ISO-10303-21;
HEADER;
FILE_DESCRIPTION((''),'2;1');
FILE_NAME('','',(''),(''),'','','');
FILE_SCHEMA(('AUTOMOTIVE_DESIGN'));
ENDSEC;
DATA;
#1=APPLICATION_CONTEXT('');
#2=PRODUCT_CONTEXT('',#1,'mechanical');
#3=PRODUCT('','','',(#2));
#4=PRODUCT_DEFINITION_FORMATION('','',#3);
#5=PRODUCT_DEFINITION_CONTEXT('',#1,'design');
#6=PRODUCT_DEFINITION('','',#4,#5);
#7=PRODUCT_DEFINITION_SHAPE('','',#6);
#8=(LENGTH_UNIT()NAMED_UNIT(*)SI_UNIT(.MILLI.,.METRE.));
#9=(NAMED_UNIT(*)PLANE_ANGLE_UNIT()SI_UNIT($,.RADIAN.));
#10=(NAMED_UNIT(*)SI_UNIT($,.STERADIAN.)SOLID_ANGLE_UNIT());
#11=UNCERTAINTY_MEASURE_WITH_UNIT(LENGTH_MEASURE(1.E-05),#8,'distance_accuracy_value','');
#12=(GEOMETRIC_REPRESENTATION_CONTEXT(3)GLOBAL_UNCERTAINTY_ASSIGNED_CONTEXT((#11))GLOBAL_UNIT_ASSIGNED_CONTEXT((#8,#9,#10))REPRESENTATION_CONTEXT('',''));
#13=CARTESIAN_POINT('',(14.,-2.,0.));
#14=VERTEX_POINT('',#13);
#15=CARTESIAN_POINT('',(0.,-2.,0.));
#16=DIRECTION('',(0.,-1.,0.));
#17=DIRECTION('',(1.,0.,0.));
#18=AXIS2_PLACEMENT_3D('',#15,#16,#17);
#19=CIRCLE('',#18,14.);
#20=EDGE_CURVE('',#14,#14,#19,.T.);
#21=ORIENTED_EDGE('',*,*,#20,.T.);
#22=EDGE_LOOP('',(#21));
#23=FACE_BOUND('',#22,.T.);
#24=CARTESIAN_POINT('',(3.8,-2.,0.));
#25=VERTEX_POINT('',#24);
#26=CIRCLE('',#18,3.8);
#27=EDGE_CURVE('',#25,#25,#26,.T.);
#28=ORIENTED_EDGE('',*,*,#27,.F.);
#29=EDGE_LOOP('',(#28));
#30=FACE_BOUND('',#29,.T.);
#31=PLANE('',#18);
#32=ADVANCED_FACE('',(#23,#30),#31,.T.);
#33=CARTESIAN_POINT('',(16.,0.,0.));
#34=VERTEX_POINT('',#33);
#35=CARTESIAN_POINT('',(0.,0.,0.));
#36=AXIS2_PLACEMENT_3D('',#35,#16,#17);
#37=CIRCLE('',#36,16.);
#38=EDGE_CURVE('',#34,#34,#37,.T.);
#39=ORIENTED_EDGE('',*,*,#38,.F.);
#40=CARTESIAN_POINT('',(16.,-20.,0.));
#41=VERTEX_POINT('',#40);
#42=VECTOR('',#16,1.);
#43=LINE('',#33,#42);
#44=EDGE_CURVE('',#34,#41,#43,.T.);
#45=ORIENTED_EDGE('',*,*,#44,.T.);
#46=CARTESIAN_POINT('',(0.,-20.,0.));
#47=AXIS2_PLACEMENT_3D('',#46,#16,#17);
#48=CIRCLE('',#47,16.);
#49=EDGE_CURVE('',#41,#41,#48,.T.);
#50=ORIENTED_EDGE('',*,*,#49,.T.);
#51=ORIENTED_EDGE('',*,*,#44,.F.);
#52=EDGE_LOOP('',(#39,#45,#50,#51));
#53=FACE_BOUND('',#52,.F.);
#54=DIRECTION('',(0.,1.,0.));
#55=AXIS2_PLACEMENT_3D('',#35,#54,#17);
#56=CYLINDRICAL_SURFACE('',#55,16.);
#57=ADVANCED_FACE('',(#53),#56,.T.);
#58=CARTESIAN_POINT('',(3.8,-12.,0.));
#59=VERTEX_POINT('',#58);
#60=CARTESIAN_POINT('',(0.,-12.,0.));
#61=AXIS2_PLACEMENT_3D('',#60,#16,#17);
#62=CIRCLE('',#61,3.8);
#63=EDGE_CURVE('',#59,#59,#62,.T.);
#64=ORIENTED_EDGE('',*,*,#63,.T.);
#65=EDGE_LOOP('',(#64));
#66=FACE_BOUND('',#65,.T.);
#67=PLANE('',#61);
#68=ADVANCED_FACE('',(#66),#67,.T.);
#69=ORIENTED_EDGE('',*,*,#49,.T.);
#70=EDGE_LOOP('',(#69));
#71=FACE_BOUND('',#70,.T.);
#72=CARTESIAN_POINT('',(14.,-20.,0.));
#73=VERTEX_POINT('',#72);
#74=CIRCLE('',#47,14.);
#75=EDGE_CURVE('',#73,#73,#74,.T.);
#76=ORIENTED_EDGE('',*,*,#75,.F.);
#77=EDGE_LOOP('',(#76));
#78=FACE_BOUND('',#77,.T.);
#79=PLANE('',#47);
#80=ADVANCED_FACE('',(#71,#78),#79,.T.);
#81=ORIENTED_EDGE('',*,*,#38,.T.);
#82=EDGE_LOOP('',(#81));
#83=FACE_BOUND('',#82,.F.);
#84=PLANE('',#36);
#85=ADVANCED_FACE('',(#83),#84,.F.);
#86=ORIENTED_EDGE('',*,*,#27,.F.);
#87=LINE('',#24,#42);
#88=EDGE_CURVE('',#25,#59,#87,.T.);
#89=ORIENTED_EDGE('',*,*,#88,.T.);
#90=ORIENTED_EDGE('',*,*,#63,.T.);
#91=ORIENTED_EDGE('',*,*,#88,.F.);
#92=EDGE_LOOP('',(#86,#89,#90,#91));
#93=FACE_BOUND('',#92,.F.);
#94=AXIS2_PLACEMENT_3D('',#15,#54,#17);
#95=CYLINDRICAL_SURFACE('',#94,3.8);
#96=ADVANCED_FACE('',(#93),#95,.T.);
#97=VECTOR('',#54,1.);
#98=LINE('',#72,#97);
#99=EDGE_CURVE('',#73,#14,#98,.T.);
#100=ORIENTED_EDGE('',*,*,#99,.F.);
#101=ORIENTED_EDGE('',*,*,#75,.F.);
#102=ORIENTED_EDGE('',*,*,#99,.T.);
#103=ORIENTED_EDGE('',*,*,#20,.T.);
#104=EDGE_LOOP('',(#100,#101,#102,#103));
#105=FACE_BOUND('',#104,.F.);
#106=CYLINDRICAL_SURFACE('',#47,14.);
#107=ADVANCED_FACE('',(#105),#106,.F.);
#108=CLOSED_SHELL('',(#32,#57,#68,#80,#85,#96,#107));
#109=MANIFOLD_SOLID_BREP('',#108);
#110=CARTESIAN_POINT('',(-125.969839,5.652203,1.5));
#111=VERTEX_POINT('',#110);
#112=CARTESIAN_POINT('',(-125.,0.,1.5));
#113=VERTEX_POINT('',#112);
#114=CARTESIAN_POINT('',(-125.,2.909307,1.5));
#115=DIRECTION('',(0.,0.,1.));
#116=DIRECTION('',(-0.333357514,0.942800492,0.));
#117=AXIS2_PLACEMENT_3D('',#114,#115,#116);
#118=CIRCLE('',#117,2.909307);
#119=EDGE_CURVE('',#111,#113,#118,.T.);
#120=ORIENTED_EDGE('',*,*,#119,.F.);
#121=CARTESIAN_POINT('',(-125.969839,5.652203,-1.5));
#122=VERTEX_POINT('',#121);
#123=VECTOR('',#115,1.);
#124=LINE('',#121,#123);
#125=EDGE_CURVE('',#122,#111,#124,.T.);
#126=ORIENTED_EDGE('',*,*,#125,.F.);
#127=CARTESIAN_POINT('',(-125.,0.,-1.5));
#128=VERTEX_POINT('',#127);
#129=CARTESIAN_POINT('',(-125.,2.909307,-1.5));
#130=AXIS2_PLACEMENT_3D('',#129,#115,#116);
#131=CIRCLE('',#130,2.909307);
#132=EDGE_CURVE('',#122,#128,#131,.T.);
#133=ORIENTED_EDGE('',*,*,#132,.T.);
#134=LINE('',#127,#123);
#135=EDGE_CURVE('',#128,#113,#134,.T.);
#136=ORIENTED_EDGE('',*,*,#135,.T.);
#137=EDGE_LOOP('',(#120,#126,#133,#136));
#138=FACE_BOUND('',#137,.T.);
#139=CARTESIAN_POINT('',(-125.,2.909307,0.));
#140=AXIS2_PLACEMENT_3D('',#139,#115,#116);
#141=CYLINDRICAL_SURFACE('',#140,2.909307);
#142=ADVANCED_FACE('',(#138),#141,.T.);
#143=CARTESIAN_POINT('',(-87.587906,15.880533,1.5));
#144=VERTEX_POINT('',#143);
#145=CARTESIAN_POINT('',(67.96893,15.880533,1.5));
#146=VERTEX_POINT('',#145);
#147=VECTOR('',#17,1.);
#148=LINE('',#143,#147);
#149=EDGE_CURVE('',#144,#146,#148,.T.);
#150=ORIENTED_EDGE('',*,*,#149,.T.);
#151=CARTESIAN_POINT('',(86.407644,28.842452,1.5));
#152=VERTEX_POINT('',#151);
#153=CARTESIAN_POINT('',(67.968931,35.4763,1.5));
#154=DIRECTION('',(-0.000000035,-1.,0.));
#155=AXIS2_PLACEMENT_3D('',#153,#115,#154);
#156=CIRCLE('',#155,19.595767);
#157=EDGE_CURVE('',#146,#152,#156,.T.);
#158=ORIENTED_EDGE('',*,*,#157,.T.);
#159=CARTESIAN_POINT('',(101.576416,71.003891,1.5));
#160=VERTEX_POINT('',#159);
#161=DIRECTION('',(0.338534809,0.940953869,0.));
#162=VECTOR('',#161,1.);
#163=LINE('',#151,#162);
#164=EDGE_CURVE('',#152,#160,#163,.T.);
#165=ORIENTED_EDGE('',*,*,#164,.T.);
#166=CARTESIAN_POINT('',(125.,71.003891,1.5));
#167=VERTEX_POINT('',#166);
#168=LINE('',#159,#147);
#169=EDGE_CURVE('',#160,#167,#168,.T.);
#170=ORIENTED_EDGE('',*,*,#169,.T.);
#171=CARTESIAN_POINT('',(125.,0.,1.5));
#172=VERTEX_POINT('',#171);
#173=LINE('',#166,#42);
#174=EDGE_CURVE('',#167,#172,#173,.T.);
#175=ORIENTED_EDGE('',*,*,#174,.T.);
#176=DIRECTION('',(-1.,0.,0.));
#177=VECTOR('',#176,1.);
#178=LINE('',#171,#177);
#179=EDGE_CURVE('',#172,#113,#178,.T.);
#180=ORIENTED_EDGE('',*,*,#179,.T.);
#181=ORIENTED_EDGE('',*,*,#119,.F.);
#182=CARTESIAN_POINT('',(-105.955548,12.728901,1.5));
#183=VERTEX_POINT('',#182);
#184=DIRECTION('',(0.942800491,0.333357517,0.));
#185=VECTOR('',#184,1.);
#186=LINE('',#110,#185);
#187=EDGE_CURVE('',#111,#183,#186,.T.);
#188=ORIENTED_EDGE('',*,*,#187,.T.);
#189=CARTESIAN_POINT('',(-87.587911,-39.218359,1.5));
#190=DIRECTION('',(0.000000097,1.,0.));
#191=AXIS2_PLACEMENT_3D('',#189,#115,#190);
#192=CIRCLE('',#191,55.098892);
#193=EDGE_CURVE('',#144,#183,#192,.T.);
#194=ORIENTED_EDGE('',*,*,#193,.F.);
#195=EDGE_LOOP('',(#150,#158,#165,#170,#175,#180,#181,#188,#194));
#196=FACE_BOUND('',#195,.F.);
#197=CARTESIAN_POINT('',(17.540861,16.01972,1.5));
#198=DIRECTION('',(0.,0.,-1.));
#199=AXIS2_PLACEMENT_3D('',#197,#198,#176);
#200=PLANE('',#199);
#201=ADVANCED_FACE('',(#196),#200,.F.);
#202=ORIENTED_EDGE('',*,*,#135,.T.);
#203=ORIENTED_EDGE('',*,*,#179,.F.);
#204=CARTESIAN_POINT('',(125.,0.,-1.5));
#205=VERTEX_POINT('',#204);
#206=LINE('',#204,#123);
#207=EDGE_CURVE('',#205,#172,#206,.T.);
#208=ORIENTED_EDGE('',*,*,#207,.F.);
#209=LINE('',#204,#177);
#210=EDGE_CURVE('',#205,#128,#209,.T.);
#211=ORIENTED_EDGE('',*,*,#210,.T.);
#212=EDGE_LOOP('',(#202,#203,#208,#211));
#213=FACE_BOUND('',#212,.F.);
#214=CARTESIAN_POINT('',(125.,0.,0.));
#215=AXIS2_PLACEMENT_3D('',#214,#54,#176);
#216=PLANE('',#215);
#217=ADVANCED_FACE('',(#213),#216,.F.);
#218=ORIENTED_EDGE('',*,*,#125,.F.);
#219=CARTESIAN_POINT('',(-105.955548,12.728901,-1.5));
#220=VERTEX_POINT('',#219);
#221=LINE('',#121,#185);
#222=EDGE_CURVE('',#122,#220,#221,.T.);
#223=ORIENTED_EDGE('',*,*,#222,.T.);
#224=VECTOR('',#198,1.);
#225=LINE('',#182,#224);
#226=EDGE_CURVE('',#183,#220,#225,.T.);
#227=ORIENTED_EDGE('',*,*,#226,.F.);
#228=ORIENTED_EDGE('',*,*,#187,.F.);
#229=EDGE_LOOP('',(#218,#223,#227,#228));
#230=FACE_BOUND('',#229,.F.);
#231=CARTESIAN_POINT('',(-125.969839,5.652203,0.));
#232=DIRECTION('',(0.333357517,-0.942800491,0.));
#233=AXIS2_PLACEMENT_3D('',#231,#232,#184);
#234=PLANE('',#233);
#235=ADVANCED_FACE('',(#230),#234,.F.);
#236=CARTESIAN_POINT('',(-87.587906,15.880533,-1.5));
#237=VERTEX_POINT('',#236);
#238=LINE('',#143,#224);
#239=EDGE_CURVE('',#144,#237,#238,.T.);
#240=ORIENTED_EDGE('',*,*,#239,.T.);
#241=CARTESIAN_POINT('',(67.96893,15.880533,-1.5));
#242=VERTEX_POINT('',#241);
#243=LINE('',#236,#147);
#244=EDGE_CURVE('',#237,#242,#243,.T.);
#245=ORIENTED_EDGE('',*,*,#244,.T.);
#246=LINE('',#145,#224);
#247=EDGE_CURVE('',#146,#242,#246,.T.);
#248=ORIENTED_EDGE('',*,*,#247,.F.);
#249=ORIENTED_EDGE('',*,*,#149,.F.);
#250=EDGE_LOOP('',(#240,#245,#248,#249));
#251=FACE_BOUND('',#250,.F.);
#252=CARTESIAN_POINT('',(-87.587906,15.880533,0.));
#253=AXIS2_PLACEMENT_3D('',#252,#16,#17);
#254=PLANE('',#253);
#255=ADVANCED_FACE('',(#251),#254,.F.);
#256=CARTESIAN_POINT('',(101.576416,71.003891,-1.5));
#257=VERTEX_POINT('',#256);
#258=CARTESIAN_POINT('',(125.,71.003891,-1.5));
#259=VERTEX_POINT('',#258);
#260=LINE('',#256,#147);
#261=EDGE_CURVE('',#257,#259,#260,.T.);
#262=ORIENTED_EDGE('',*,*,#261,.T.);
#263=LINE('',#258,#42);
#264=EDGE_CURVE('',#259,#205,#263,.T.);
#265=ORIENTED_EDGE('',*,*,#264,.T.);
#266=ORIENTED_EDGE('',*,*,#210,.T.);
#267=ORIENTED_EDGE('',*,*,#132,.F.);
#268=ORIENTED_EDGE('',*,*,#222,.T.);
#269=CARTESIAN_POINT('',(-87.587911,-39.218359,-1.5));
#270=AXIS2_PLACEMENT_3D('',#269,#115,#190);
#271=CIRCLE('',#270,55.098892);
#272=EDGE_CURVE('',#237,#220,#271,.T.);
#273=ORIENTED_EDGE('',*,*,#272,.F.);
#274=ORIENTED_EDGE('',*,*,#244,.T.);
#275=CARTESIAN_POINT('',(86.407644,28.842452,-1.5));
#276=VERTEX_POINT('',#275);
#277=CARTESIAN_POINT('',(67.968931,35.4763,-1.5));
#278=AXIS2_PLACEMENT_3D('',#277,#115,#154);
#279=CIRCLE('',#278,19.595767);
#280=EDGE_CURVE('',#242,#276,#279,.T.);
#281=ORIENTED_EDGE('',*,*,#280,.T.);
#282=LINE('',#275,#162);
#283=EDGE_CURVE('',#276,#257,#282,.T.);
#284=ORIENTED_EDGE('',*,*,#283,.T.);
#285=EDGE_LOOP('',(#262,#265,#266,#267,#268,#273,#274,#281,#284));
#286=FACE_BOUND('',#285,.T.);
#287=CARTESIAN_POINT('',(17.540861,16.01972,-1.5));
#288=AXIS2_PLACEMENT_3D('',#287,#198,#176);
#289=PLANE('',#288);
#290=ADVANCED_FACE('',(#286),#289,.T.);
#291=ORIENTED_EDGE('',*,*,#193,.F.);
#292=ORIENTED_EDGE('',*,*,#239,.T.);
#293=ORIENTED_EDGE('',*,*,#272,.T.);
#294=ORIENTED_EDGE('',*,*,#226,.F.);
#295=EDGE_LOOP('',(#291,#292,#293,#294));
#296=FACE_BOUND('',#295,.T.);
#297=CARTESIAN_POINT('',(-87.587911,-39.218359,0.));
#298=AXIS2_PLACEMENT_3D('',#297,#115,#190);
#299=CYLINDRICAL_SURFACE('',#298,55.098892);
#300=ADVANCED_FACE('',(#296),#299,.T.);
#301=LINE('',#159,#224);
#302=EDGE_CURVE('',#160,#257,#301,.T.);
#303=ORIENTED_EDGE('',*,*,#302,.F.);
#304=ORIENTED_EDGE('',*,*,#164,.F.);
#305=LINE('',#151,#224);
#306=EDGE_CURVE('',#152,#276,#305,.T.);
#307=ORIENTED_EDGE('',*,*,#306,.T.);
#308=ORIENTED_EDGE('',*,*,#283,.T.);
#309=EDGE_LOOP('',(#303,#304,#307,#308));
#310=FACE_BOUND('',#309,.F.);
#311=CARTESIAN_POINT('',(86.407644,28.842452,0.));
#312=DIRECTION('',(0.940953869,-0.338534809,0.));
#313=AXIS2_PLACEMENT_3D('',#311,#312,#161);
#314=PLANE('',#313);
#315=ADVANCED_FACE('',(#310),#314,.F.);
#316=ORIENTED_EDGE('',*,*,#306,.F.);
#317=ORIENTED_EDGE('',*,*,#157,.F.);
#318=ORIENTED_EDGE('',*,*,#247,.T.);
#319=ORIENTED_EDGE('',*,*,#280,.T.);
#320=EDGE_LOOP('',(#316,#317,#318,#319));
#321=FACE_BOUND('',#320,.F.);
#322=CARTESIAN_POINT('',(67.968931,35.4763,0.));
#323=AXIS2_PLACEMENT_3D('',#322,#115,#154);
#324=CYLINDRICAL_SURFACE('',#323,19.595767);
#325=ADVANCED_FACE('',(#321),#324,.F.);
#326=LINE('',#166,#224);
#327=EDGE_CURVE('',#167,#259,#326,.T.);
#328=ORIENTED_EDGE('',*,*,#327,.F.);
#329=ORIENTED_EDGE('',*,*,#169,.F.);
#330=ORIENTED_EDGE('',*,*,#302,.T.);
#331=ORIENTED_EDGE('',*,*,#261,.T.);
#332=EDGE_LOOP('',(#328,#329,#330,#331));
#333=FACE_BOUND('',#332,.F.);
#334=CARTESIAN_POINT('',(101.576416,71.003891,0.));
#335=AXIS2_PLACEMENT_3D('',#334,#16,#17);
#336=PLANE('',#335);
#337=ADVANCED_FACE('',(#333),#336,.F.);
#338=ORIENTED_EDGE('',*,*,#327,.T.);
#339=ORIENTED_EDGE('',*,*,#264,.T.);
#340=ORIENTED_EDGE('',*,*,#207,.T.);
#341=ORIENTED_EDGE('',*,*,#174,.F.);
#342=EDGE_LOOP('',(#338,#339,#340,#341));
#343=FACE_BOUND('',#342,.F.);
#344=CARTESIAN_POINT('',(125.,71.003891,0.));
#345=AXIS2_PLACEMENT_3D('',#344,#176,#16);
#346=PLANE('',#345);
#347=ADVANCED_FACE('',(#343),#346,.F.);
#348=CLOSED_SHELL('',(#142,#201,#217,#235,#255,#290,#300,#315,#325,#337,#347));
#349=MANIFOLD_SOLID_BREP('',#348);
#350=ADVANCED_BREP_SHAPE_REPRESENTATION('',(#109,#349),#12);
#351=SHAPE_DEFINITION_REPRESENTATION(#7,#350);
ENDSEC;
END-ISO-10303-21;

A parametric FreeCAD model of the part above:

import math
import FreeCAD as App
import Part
import Sketcher
from FreeCAD import Vector
Q = App.Units.Quantity

doc = App.newDocument("Part")
body = doc.addObject("PartDesign::Body", "Body")

sketch1 = body.newObject("Sketcher::SketchObject", "Sketch")
sketch1.AttachmentSupport = (doc.getObject("XY_Plane"), [""])
sketch1.MapMode = "FlatFace"
sketch1.addGeometry([
    Part.LineSegment(Vector(-106, 12.7, 0), Vector(-126, 5.7, 0)),
    Part.ArcOfCircle(Part.Circle(Vector(-125, 2.9, 0), Vector(0, 0, 1), 2.9), math.radians(109), math.radians(270)),
    Part.LineSegment(Vector(-125, 0, 0), Vector(125, 0, 0)),
    Part.LineSegment(Vector(125, 0, 0), Vector(125, 71, 0)),
    Part.LineSegment(Vector(125, 71, 0), Vector(101.6, 71, 0)),
    Part.LineSegment(Vector(101.6, 71, 0), Vector(86.4, 28.8, 0)),
    Part.ArcOfCircle(Part.Circle(Vector(68, 35.5, 0), Vector(0, 0, 1), 19.6), math.radians(-90), math.radians(-20)),
    Part.LineSegment(Vector(68, 15.9, 0), Vector(-87.6, 15.9, 0)),
    Part.ArcOfCircle(Part.Circle(Vector(-87.6, -39.2, 0), Vector(0, 0, 1), 55.1), math.radians(90), math.radians(109.47)),
], False)
sketch1.addConstraint([
    Sketcher.Constraint("Tangent", 0, 2, 1, 1),
    Sketcher.Constraint("Tangent", 1, 2, 2, 1),
    Sketcher.Constraint("Coincident", 2, 2, 3, 1),
    Sketcher.Constraint("Coincident", 3, 2, 4, 1),
    Sketcher.Constraint("Coincident", 4, 2, 5, 1),
    Sketcher.Constraint("Tangent", 5, 2, 6, 2),
    Sketcher.Constraint("Tangent", 6, 1, 7, 1),
    Sketcher.Constraint("Tangent", 7, 2, 8, 1),
    Sketcher.Constraint("Tangent", 8, 2, 0, 1),
    Sketcher.Constraint("Horizontal", 2),
    Sketcher.Constraint("Vertical", 3),
    Sketcher.Constraint("Horizontal", 4),
    Sketcher.Constraint("Horizontal", 7),
    Sketcher.Constraint("Symmetric", 1, 2, 2, 2, -1, 1),
    Sketcher.Constraint("DistanceX", 2, 1, 2, 2, Q("250 mm")),
    Sketcher.Constraint("Radius", 8, Q("55.098892 mm")),
    Sketcher.Constraint("Radius", 1, Q("2.909307 mm")),
    Sketcher.Constraint("Radius", 6, Q("19.595767 mm")),
    Sketcher.Constraint("DistanceY", 3, 1, 3, 2, Q("71.003891 mm")),
    Sketcher.Constraint("DistanceY", -1, 1, 6, 3, Q("35.4763 mm")),
    Sketcher.Constraint("DistanceY", -1, 1, 8, 2, Q("12.728901 mm")),
    Sketcher.Constraint("DistanceX", 4, 2, 4, 1, Q("23.423584 mm")),
    Sketcher.Constraint("DistanceX", 7, 2, 7, 1, Q("155.556836 mm")),
])
pad1 = body.newObject("PartDesign::Pad", "Pad")
pad1.Profile = sketch1
pad1.Length = 3
pad1.Midplane = True
body2 = doc.addObject("PartDesign::Body", "Body001")

sketch2 = body2.newObject("Sketcher::SketchObject", "Sketch001")
sketch2.AttachmentSupport = (doc.getObject("XZ_Plane001"), [""])
sketch2.MapMode = "FlatFace"
sketch2.addGeometry(Part.Circle(Vector(0, 0, 0), Vector(0, 0, 1), 16), False)
sketch2.addConstraint([
    Sketcher.Constraint("Coincident", 0, 3, -1, 1),
    Sketcher.Constraint("Diameter", 0, Q("32 mm")),
])
pad2 = body2.newObject("PartDesign::Pad", "Pad001")
pad2.Profile = sketch2
pad2.Length = 20

sketch3 = body2.newObject("Sketcher::SketchObject", "Sketch002")
sketch3.AttachmentSupport = (doc.getObject("XZ_Plane001"), [""])
sketch3.MapMode = "FlatFace"
sketch3.AttachmentOffset = App.Placement(Vector(0, 0, 20), App.Rotation())
sketch3.addGeometry(Part.Circle(Vector(0, 0, 0), Vector(0, 0, 1), 14), False)
sketch3.addConstraint([
    Sketcher.Constraint("Coincident", 0, 3, -1, 1),
    Sketcher.Constraint("Diameter", 0, Q("28 mm")),
])
pocket1 = body2.newObject("PartDesign::Pocket", "Pocket")
pocket1.Profile = sketch3
pocket1.Length = 18

sketch4 = body2.newObject("Sketcher::SketchObject", "Sketch003")
sketch4.AttachmentSupport = (doc.getObject("XZ_Plane001"), [""])
sketch4.MapMode = "FlatFace"
sketch4.AttachmentOffset = App.Placement(Vector(0, 0, 2), App.Rotation())
sketch4.addGeometry(Part.Circle(Vector(0, 0, 0), Vector(0, 0, 1), 3.8), False)
sketch4.addConstraint([
    Sketcher.Constraint("Coincident", 0, 3, -1, 1),
    Sketcher.Constraint("Diameter", 0, Q("7.6 mm")),
])
pad3 = body2.newObject("PartDesign::Pad", "Pad002")
pad3.Profile = sketch4
pad3.Length = 10

doc.recompute()
